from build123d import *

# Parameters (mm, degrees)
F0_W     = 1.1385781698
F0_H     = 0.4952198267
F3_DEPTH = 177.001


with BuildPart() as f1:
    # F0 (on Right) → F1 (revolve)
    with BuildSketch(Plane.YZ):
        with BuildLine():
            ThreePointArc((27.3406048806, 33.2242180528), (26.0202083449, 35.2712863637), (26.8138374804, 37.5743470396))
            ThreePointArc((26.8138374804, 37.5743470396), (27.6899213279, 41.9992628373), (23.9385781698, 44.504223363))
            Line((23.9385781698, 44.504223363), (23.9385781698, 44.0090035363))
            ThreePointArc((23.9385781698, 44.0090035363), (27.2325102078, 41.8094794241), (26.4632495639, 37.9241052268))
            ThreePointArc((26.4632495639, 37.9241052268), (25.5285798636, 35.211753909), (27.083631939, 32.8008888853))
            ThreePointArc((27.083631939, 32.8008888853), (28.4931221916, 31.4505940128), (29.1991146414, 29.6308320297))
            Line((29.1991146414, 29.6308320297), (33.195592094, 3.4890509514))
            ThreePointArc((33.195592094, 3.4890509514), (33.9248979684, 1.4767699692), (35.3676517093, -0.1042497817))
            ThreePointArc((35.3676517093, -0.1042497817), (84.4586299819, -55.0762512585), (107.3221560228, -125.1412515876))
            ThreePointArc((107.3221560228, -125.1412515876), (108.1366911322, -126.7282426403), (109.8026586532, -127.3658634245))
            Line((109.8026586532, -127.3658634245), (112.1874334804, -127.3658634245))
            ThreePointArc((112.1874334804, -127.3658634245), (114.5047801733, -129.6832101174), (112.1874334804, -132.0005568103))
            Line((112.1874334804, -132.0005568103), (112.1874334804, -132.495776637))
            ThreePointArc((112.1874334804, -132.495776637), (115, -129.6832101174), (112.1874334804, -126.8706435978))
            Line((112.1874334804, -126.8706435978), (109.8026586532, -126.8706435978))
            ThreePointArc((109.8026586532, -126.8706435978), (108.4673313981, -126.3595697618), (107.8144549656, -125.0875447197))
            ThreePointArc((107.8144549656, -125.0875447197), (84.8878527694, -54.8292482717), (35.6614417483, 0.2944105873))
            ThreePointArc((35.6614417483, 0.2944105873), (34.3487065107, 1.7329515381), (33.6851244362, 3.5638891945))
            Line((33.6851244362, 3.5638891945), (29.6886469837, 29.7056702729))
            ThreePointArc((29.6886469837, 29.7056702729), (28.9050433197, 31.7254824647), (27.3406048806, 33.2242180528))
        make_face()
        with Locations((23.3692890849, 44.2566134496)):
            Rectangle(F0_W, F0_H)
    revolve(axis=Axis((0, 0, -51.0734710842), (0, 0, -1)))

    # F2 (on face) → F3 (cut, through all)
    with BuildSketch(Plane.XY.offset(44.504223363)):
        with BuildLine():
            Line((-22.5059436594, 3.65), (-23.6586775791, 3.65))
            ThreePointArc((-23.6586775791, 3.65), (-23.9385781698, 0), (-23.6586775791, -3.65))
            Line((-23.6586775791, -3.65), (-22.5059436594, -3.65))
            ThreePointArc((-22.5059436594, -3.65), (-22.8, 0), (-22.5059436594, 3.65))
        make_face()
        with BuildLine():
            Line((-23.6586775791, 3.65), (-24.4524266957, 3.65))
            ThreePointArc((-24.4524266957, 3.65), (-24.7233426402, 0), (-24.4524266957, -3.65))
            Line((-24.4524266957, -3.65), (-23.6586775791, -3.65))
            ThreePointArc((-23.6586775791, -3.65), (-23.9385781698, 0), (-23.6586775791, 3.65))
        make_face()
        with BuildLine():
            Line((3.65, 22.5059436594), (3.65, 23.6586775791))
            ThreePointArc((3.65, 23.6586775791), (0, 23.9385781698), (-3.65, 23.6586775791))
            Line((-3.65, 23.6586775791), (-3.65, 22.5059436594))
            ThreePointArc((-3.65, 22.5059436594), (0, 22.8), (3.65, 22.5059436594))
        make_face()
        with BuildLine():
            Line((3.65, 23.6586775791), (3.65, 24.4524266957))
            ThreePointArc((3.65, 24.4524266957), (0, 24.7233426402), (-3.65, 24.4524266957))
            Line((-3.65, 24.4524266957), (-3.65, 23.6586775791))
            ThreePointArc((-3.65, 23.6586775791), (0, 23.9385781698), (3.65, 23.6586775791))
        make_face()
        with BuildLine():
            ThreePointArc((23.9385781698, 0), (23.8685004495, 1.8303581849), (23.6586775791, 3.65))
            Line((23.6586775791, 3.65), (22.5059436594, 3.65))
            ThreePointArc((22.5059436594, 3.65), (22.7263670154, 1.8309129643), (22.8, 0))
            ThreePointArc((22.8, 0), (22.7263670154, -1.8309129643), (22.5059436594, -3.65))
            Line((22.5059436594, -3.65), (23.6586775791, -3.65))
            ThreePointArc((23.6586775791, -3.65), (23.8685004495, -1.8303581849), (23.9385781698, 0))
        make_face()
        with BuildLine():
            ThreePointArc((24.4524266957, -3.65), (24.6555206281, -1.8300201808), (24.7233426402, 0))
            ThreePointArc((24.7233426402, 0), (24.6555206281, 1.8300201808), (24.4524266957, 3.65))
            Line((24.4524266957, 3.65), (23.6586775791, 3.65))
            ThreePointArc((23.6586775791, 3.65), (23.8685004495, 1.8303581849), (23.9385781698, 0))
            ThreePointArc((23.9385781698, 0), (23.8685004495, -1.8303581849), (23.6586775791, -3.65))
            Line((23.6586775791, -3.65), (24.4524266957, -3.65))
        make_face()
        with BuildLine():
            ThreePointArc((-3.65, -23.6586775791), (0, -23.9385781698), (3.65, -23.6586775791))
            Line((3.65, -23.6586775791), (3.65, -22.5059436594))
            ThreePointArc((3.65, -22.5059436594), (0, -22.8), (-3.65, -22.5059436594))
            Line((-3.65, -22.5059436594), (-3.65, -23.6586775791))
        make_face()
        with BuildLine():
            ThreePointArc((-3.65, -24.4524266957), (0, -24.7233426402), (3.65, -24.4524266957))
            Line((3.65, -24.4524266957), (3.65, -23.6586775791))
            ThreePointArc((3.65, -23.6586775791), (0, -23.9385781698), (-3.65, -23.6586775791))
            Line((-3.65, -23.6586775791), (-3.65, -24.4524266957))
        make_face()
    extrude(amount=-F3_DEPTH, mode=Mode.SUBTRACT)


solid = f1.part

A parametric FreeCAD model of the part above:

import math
import FreeCAD as App
import Part
import Sketcher

V = App.Vector

doc = App.newDocument("Part")
body = doc.addObject("PartDesign::Body", "Body")

# Sketch on YZ plane
sketch1 = body.newObject("Sketcher::SketchObject", "Sketch")
sketch1.AttachmentSupport = (doc.getObject("YZ_Plane"), [""])
sketch1.MapMode = "FlatFace"
sketch1.addGeometry(Part.ArcOfCircle(Part.Circle(V(28.79, 35.61, 0), V(0, 0, 1), 2.79), math.radians(135), math.radians(239)), False)
sketch1.addGeometry(Part.ArcOfCircle(Part.Circle(V(23.94, 40.44, 0), V(0, 0, 1), 4.06), math.radians(-45), math.radians(90)), False)
sketch1.addGeometry(Part.LineSegment(V(23.94, 44.5, 0), V(22.8, 44.5, 0)), False)
sketch1.addGeometry(Part.LineSegment(V(22.8, 44.5, 0), V(22.8, 44.01, 0)), False)
sketch1.addGeometry(Part.LineSegment(V(22.8, 44.01, 0), V(23.94, 44.01, 0)), False)
sketch1.addGeometry(Part.ArcOfCircle(Part.Circle(V(23.94, 40.44, 0), V(0, 0, 1), 3.57), math.radians(-45), math.radians(90)), False)
sketch1.addGeometry(Part.ArcOfCircle(Part.Circle(V(28.79, 35.61, 0), V(0, 0, 1), 3.28), math.radians(135), math.radians(239)), False)
sketch1.addGeometry(Part.ArcOfCircle(Part.Circle(V(24.75, 28.95, 0), V(0, 0, 1), 4.5), math.radians(9), math.radians(59)), False)
sketch1.addGeometry(Part.LineSegment(V(29.2, 29.63, 0), V(33.2, 3.49, 0)), False)
sketch1.addGeometry(Part.ArcOfCircle(Part.Circle(V(38.63, 4.32, 0), V(0, 0, 1), 5.5), math.radians(-171), math.radians(-126)), False)
sketch1.addGeometry(Part.ArcOfCircle(Part.Circle(V(-71.12, -144.61, 0), V(0, 0, 1), 179.5), math.radians(6), math.radians(54)), False)
sketch1.addGeometry(Part.ArcOfCircle(Part.Circle(V(109.8, -124.87, 0), V(0, 0, 1), 2.5), math.radians(-174), math.radians(-90)), False)
sketch1.addGeometry(Part.LineSegment(V(109.8, -127.37, 0), V(112.19, -127.37, 0)), False)
sketch1.addGeometry(Part.ArcOfCircle(Part.Circle(V(112.19, -129.68, 0), V(0, 0, 1), 2.32), math.radians(-90), math.radians(90)), False)
sketch1.addGeometry(Part.LineSegment(V(112.19, -132, 0), V(112.19, -132.5, 0)), False)
sketch1.addGeometry(Part.ArcOfCircle(Part.Circle(V(112.19, -129.68, 0), V(0, 0, 1), 2.81), math.radians(-90), math.radians(90)), False)
sketch1.addGeometry(Part.LineSegment(V(112.19, -126.87, 0), V(109.8, -126.87, 0)), False)
sketch1.addGeometry(Part.ArcOfCircle(Part.Circle(V(109.8, -124.87, 0), V(0, 0, 1), 2), math.radians(-174), math.radians(-90)), False)
sketch1.addGeometry(Part.ArcOfCircle(Part.Circle(V(-71.12, -144.61, 0), V(0, 0, 1), 180), math.radians(6), math.radians(54)), False)
sketch1.addGeometry(Part.ArcOfCircle(Part.Circle(V(38.63, 4.32, 0), V(0, 0, 1), 5), math.radians(-171), math.radians(-126)), False)
sketch1.addGeometry(Part.LineSegment(V(33.69, 3.56, 0), V(29.69, 29.71, 0)), False)
sketch1.addGeometry(Part.ArcOfCircle(Part.Circle(V(24.75, 28.95, 0), V(0, 0, 1), 5), math.radians(9), math.radians(59)), False)
sketch1.addConstraint(Sketcher.Constraint("Tangent", 0, 1, 1, 1))
sketch1.addConstraint(Sketcher.Constraint("Tangent", 1, 2, 2, 1))
sketch1.addConstraint(Sketcher.Constraint("Coincident", 2, 2, 3, 1))
sketch1.addConstraint(Sketcher.Constraint("Coincident", 3, 2, 4, 1))
sketch1.addConstraint(Sketcher.Constraint("Tangent", 4, 2, 5, 2))
sketch1.addConstraint(Sketcher.Constraint("Tangent", 5, 1, 6, 1))
sketch1.addConstraint(Sketcher.Constraint("Tangent", 6, 2, 7, 2))
sketch1.addConstraint(Sketcher.Constraint("Tangent", 7, 1, 8, 1))
sketch1.addConstraint(Sketcher.Constraint("Tangent", 8, 2, 9, 1))
sketch1.addConstraint(Sketcher.Constraint("Tangent", 9, 2, 10, 2))
sketch1.addConstraint(Sketcher.Constraint("Tangent", 10, 1, 11, 1))
sketch1.addConstraint(Sketcher.Constraint("Tangent", 11, 2, 12, 1))
sketch1.addConstraint(Sketcher.Constraint("Tangent", 12, 2, 13, 2))
sketch1.addConstraint(Sketcher.Constraint("Coincident", 13, 1, 14, 1))
sketch1.addConstraint(Sketcher.Constraint("Coincident", 14, 2, 15, 1))
sketch1.addConstraint(Sketcher.Constraint("Tangent", 15, 2, 16, 1))
sketch1.addConstraint(Sketcher.Constraint("Tangent", 16, 2, 17, 2))
sketch1.addConstraint(Sketcher.Constraint("Tangent", 17, 1, 18, 1))
sketch1.addConstraint(Sketcher.Constraint("Tangent", 18, 2, 19, 2))
sketch1.addConstraint(Sketcher.Constraint("Tangent", 19, 1, 20, 1))
sketch1.addConstraint(Sketcher.Constraint("Tangent", 20, 2, 21, 1))
sketch1.addConstraint(Sketcher.Constraint("Tangent", 21, 2, 0, 2))
sketch1.addConstraint(Sketcher.Constraint("Horizontal", 2))
sketch1.addConstraint(Sketcher.Constraint("Vertical", 3))
sketch1.addConstraint(Sketcher.Constraint("Horizontal", 4))
sketch1.addConstraint(Sketcher.Constraint("Horizontal", 12))
sketch1.addConstraint(Sketcher.Constraint("Vertical", 14))
sketch1.addConstraint(Sketcher.Constraint("Horizontal", 16))
sketch1.addConstraint(Sketcher.Constraint("Coincident", 5, 3, 1, 3))
sketch1.addConstraint(Sketcher.Constraint("Coincident", 6, 3, 0, 3))
sketch1.addConstraint(Sketcher.Constraint("Coincident", 15, 3, 13, 3))
sketch1.addConstraint(Sketcher.Constraint("Coincident", 17, 3, 11, 3))
sketch1.addConstraint(Sketcher.Constraint("Coincident", 18, 3, 10, 3))
sketch1.addConstraint(Sketcher.Constraint("Coincident", 19, 3, 9, 3))
sketch1.addConstraint(Sketcher.Constraint("Coincident", 21, 3, 7, 3))
sketch1.addConstraint(Sketcher.Constraint("Equal", 19, 21))
sketch1.addConstraint(Sketcher.Constraint("Parallel", 8, 20))
sketch1.addConstraint(Sketcher.Constraint("Vertical", 12, 2, 13, 1))
sketch1.addConstraint(Sketcher.Constraint("Radius", 17, 2.0))
sketch1.addConstraint(Sketcher.Constraint("Radius", 18, 180.0))
sketch1.addConstraint(Sketcher.Constraint("Radius", 19, 5.0))
sketch1.addConstraint(Sketcher.Constraint("DistanceX", -1, 1, 2, 2, 22.8))
sketch1.addConstraint(Sketcher.Constraint("Radius", 6, 3.2818))
sketch1.addConstraint(Sketcher.Constraint("Radius", 0, 2.78658))
sketch1.addConstraint(Sketcher.Constraint("Radius", 1, 4.061422))
sketch1.addConstraint(Sketcher.Constraint("Radius", 13, 2.317347))
sketch1.addConstraint(Sketcher.Constraint("DistanceY", 10, 1, 9, 2, 125.037002))
sketch1.addConstraint(Sketcher.Constraint("Distance", 8, 26.445502))
sketch1.addConstraint(Sketcher.Constraint("DistanceX", 2, 2, 2, 1, 1.138578))
sketch1.addConstraint(Sketcher.Constraint("DistanceY", -1, 1, 1, 3, 40.442802))
sketch1.addConstraint(Sketcher.Constraint("DistanceX", -1, 1, 9, 3, 38.627701))
sketch1.addConstraint(Sketcher.Constraint("DistanceY", 9, 2, 8, 2, 3.593301))
sketch1.addConstraint(Sketcher.Constraint("DistanceX", 12, 1, 12, 2, 2.384775))
sketch1.addConstraint(Sketcher.Constraint("DistanceX", -1, 1, 0, 3, 28.78658))
sketch1.addConstraint(Sketcher.Constraint("DistanceX", -1, 1, 7, 3, 24.746071))
revolution = body.newObject("PartDesign::Revolution", "Revolution")
revolution.Profile = sketch1
revolution.ReferenceAxis = (sketch1, ["V_Axis"])
revolution.Angle = 360

# Sketch on XY plane
sketch2 = body.newObject("Sketcher::SketchObject", "Sketch001")
sketch2.AttachmentSupport = (doc.getObject("XY_Plane"), [""])
sketch2.MapMode = "FlatFace"
sketch2.AttachmentOffset = App.Placement(V(0, 0, 44.504223), App.Rotation())
sketch2.addGeometry(Part.LineSegment(V(-22.5, 3.6, 0), V(-24.5, 3.6, 0)), False)
sketch2.addGeometry(Part.ArcOfCircle(Part.Circle(V(0, 0, 0), V(0, 0, 1), 24.7), math.radians(171.51), math.radians(188.49)), False)
sketch2.addGeometry(Part.LineSegment(V(-24.5, -3.6, 0), V(-22.5, -3.6, 0)), False)
sketch2.addGeometry(Part.ArcOfCircle(Part.Circle(V(0, 0, 0), V(0, 0, 1), 22.8), math.radians(170.79), math.radians(189.21)), False)
sketch2.addGeometry(Part.LineSegment(V(3.6, 22.5, 0), V(3.6, 24.5, 0)), False)
sketch2.addGeometry(Part.ArcOfCircle(Part.Circle(V(0, 0, 0), V(0, 0, 1), 24.7), math.radians(81.51), math.radians(98.49)), False)
sketch2.addGeometry(Part.LineSegment(V(-3.6, 24.5, 0), V(-3.6, 22.5, 0)), False)
sketch2.addGeometry(Part.ArcOfCircle(Part.Circle(V(0, 0, 0), V(0, 0, 1), 22.8), math.radians(80.79), math.radians(99.21)), False)
sketch2.addGeometry(Part.ArcOfCircle(Part.Circle(V(0, 0, 0), V(0, 0, 1), 22.8), math.radians(0), math.radians(9.21)), False)
sketch2.addGeometry(Part.ArcOfCircle(Part.Circle(V(0, 0, 0), V(0, 0, 1), 22.8), math.radians(-9.21), math.radians(0)), False)
sketch2.addGeometry(Part.LineSegment(V(22.5, -3.6, 0), V(24.5, -3.6, 0)), False)
sketch2.addGeometry(Part.ArcOfCircle(Part.Circle(V(0, 0, 0), V(0, 0, 1), 24.7), math.radians(-8.49), math.radians(0)), False)
sketch2.addGeometry(Part.ArcOfCircle(Part.Circle(V(0, 0, 0), V(0, 0, 1), 24.7), math.radians(0), math.radians(8.49)), False)
sketch2.addGeometry(Part.LineSegment(V(24.5, 3.6, 0), V(22.5, 3.6, 0)), False)
sketch2.addGeometry(Part.ArcOfCircle(Part.Circle(V(0, 0, 0), V(0, 0, 1), 22.8), math.radians(-99.21), math.radians(-80.79)), False)
sketch2.addGeometry(Part.LineSegment(V(-3.6, -22.5, 0), V(-3.6, -24.5, 0)), False)
sketch2.addGeometry(Part.ArcOfCircle(Part.Circle(V(0, 0, 0), V(0, 0, 1), 24.7), math.radians(-98.49), math.radians(-81.51)), False)
sketch2.addGeometry(Part.LineSegment(V(3.6, -24.5, 0), V(3.6, -22.5, 0)), False)
sketch2.addConstraint(Sketcher.Constraint("Coincident", 0, 2, 1, 1))
sketch2.addConstraint(Sketcher.Constraint("Coincident", 1, 2, 2, 1))
sketch2.addConstraint(Sketcher.Constraint("Coincident", 2, 2, 3, 2))
sketch2.addConstraint(Sketcher.Constraint("Coincident", 3, 1, 0, 1))
sketch2.addConstraint(Sketcher.Constraint("Coincident", 4, 2, 5, 1))
sketch2.addConstraint(Sketcher.Constraint("Coincident", 5, 2, 6, 1))
sketch2.addConstraint(Sketcher.Constraint("Coincident", 6, 2, 7, 2))
sketch2.addConstraint(Sketcher.Constraint("Coincident", 7, 1, 4, 1))
sketch2.addConstraint(Sketcher.Constraint("Tangent", 8, 1, 9, 2))
sketch2.addConstraint(Sketcher.Constraint("Coincident", 9, 1, 10, 1))
sketch2.addConstraint(Sketcher.Constraint("Coincident", 10, 2, 11, 1))
sketch2.addConstraint(Sketcher.Constraint("Tangent", 11, 2, 12, 1))
sketch2.addConstraint(Sketcher.Constraint("Coincident", 12, 2, 13, 1))
sketch2.addConstraint(Sketcher.Constraint("Coincident", 13, 2, 8, 2))
sketch2.addConstraint(Sketcher.Constraint("Coincident", 14, 1, 15, 1))
sketch2.addConstraint(Sketcher.Constraint("Coincident", 15, 2, 16, 1))
sketch2.addConstraint(Sketcher.Constraint("Coincident", 16, 2, 17, 1))
sketch2.addConstraint(Sketcher.Constraint("Coincident", 17, 2, 14, 2))
sketch2.addConstraint(Sketcher.Constraint("Horizontal", 0))
sketch2.addConstraint(Sketcher.Constraint("Horizontal", 2))
sketch2.addConstraint(Sketcher.Constraint("Vertical", 4))
sketch2.addConstraint(Sketcher.Constraint("Vertical", 6))
sketch2.addConstraint(Sketcher.Constraint("Horizontal", 10))
sketch2.addConstraint(Sketcher.Constraint("Horizontal", 13))
sketch2.addConstraint(Sketcher.Constraint("Vertical", 15))
sketch2.addConstraint(Sketcher.Constraint("Vertical", 17))
sketch2.addConstraint(Sketcher.Constraint("Coincident", 1, 3, -1, 1))
sketch2.addConstraint(Sketcher.Constraint("Coincident", 3, 3, -1, 1))
sketch2.addConstraint(Sketcher.Constraint("Coincident", 5, 3, -1, 1))
sketch2.addConstraint(Sketcher.Constraint("Coincident", 7, 3, -1, 1))
sketch2.addConstraint(Sketcher.Constraint("Coincident", 8, 3, -1, 1))
sketch2.addConstraint(Sketcher.Constraint("Coincident", 11, 3, -1, 1))
sketch2.addConstraint(Sketcher.Constraint("Coincident", 14, 3, -1, 1))
sketch2.addConstraint(Sketcher.Constraint("Coincident", 16, 3, -1, 1))
sketch2.addConstraint(Sketcher.Constraint("Equal", 1, 5))
sketch2.addConstraint(Sketcher.Constraint("Equal", 3, 7))
sketch2.addConstraint(Sketcher.Constraint("Equal", 7, 8))
sketch2.addConstraint(Sketcher.Constraint("Equal", 8, 9))
sketch2.addConstraint(Sketcher.Constraint("Equal", 5, 11))
sketch2.addConstraint(Sketcher.Constraint("Equal", 11, 12))
sketch2.addConstraint(Sketcher.Constraint("Equal", 9, 14))
sketch2.addConstraint(Sketcher.Constraint("Equal", 12, 16))
sketch2.addConstraint(Sketcher.Constraint("PointOnObject", 8, 1, -1))
sketch2.addConstraint(Sketcher.Constraint("PointOnObject", 11, 2, -1))
sketch2.addConstraint(Sketcher.Constraint("Horizontal", 4, 2, 5, 2))
sketch2.addConstraint(Sketcher.Constraint("Horizontal", 2, 2, 9, 1))
sketch2.addConstraint(Sketcher.Constraint("Horizontal", 3, 1, 12, 2))
sketch2.addConstraint(Sketcher.Constraint("Horizontal", 15, 2, 16, 2))
sketch2.addConstraint(Sketcher.Constraint("Vertical", 0, 2, 1, 2))
sketch2.addConstraint(Sketcher.Constraint("Vertical", 6, 2, 14, 1))
sketch2.addConstraint(Sketcher.Constraint("Equal", 13, 4))
sketch2.addConstraint(Sketcher.Constraint("Radius", 3, 22.8))
sketch2.addConstraint(Sketcher.Constraint("DistanceY", 1, 2, 0, 2, 7.3))
sketch2.addConstraint(Sketcher.Constraint("Radius", 1, 24.723343))
pocket1 = body.newObject("PartDesign::Pocket", "Pocket")
pocket1.Profile = sketch2
pocket1.Type = "ThroughAll"

doc.recompute()
